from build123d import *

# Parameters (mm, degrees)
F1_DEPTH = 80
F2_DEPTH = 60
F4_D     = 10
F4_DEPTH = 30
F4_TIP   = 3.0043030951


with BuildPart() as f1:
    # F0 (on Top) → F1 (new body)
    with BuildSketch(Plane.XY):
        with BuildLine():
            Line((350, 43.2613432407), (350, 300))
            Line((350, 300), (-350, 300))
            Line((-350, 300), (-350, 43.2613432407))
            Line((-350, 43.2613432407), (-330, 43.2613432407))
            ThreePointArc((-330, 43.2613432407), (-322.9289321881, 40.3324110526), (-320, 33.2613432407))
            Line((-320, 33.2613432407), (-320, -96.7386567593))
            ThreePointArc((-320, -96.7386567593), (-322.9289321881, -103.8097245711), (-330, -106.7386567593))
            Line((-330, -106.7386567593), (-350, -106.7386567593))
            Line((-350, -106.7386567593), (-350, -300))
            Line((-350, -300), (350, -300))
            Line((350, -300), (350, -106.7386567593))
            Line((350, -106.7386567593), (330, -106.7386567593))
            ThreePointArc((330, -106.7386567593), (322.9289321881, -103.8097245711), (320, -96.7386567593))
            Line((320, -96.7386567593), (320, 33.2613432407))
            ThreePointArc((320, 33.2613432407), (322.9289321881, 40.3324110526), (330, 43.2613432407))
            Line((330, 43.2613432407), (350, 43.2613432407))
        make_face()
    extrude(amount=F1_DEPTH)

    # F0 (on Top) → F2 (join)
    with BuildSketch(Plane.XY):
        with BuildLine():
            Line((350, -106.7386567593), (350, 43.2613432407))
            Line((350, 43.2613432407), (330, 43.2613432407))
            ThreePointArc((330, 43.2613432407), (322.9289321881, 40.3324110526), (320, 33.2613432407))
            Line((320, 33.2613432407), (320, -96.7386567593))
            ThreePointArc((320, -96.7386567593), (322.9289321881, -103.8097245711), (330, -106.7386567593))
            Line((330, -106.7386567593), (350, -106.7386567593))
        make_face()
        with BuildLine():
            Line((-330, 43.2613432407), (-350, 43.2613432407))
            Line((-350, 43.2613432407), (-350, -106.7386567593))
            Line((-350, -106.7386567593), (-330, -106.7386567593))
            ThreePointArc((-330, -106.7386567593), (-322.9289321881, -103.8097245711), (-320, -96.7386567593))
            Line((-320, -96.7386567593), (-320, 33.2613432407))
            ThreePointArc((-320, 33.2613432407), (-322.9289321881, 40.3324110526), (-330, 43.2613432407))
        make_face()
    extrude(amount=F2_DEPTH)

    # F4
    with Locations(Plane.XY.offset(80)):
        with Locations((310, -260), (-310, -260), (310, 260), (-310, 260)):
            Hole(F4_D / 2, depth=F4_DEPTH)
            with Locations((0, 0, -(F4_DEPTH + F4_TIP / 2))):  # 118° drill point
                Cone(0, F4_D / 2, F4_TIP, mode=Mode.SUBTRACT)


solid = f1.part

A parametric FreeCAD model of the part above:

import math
import FreeCAD as App
import Part
import Sketcher
Q = App.Units.Quantity

doc = App.newDocument("Part")
body = doc.addObject("PartDesign::Body", "Body")

# Sketch on XY plane
sketch1 = doc.addObject("Sketcher::SketchObject", "Sketch")
body.addObject(sketch1)
sketch1.AttachmentSupport = (doc.XY_Plane, [""])
sketch1.MapMode = "FlatFace"
sketch1.addGeometry(Part.LineSegment(App.Vector(350, 43.261343, 0), App.Vector(350, 300, 0)), False)
sketch1.addGeometry(Part.LineSegment(App.Vector(350, 300, 0), App.Vector(-350, 300, 0)), False)
sketch1.addGeometry(Part.LineSegment(App.Vector(-350, 300, 0), App.Vector(-350, 43.261343, 0)), False)
sketch1.addGeometry(Part.LineSegment(App.Vector(-350, 43.261343, 0), App.Vector(-330, 43.261343, 0)), False)
sketch1.addGeometry(Part.ArcOfCircle(Part.Circle(App.Vector(-330, 33.261343, 0), App.Vector(0, 0, 1), 10), math.radians(0), math.radians(90)), False)
sketch1.addGeometry(Part.LineSegment(App.Vector(-320, 33.261343, 0), App.Vector(-320, -96.738657, 0)), False)
sketch1.addGeometry(Part.ArcOfCircle(Part.Circle(App.Vector(-330, -96.738657, 0), App.Vector(0, 0, 1), 10), math.radians(-90), math.radians(0)), False)
sketch1.addGeometry(Part.LineSegment(App.Vector(-330, -106.738657, 0), App.Vector(-350, -106.738657, 0)), False)
sketch1.addGeometry(Part.LineSegment(App.Vector(-350, -106.738657, 0), App.Vector(-350, -300, 0)), False)
sketch1.addGeometry(Part.LineSegment(App.Vector(-350, -300, 0), App.Vector(350, -300, 0)), False)
sketch1.addGeometry(Part.LineSegment(App.Vector(350, -300, 0), App.Vector(350, -106.738657, 0)), False)
sketch1.addGeometry(Part.LineSegment(App.Vector(350, -106.738657, 0), App.Vector(330, -106.738657, 0)), False)
sketch1.addGeometry(Part.ArcOfCircle(Part.Circle(App.Vector(330, -96.738657, 0), App.Vector(0, 0, 1), 10), math.radians(180), math.radians(270)), False)
sketch1.addGeometry(Part.LineSegment(App.Vector(320, -96.738657, 0), App.Vector(320, 33.261343, 0)), False)
sketch1.addGeometry(Part.ArcOfCircle(Part.Circle(App.Vector(330, 33.261343, 0), App.Vector(0, 0, 1), 10), math.radians(90), math.radians(180)), False)
sketch1.addGeometry(Part.LineSegment(App.Vector(330, 43.261343, 0), App.Vector(350, 43.261343, 0)), False)
sketch1.addConstraint(Sketcher.Constraint("Coincident", 0, 2, 1, 1))
sketch1.addConstraint(Sketcher.Constraint("Coincident", 1, 2, 2, 1))
sketch1.addConstraint(Sketcher.Constraint("Coincident", 2, 2, 3, 1))
sketch1.addConstraint(Sketcher.Constraint("Tangent", 3, 2, 4, 2))
sketch1.addConstraint(Sketcher.Constraint("Tangent", 4, 1, 5, 1))
sketch1.addConstraint(Sketcher.Constraint("Tangent", 5, 2, 6, 2))
sketch1.addConstraint(Sketcher.Constraint("Tangent", 6, 1, 7, 1))
sketch1.addConstraint(Sketcher.Constraint("Coincident", 7, 2, 8, 1))
sketch1.addConstraint(Sketcher.Constraint("Coincident", 8, 2, 9, 1))
sketch1.addConstraint(Sketcher.Constraint("Coincident", 9, 2, 10, 1))
sketch1.addConstraint(Sketcher.Constraint("Coincident", 10, 2, 11, 1))
sketch1.addConstraint(Sketcher.Constraint("Tangent", 11, 2, 12, 2))
sketch1.addConstraint(Sketcher.Constraint("Tangent", 12, 1, 13, 1))
sketch1.addConstraint(Sketcher.Constraint("Tangent", 13, 2, 14, 2))
sketch1.addConstraint(Sketcher.Constraint("Tangent", 14, 1, 15, 1))
sketch1.addConstraint(Sketcher.Constraint("Coincident", 15, 2, 0, 1))
sketch1.addConstraint(Sketcher.Constraint("Vertical", 0))
sketch1.addConstraint(Sketcher.Constraint("Horizontal", 1))
sketch1.addConstraint(Sketcher.Constraint("Vertical", 2))
sketch1.addConstraint(Sketcher.Constraint("Horizontal", 3))
sketch1.addConstraint(Sketcher.Constraint("Vertical", 5))
sketch1.addConstraint(Sketcher.Constraint("Horizontal", 7))
sketch1.addConstraint(Sketcher.Constraint("Vertical", 8))
sketch1.addConstraint(Sketcher.Constraint("Horizontal", 9))
sketch1.addConstraint(Sketcher.Constraint("Vertical", 10))
sketch1.addConstraint(Sketcher.Constraint("Horizontal", 11))
sketch1.addConstraint(Sketcher.Constraint("Vertical", 13))
sketch1.addConstraint(Sketcher.Constraint("Horizontal", 15))
sketch1.addConstraint(Sketcher.Constraint("Equal", 4, 6))
sketch1.addConstraint(Sketcher.Constraint("Equal", 6, 12))
sketch1.addConstraint(Sketcher.Constraint("Equal", 12, 14))
sketch1.addConstraint(Sketcher.Constraint("Symmetric", 0, 2, 8, 2, -1, 1))
sketch1.addConstraint(Sketcher.Constraint("Symmetric", 6, 3, 12, 3, -2))
sketch1.addConstraint(Sketcher.Constraint("Symmetric", 2, 2, 15, 2, -2))
sketch1.addConstraint(Sketcher.Constraint("Vertical", 0, 2, 9, 2))
sketch1.addConstraint(Sketcher.Constraint("Radius", 4, Q("10 mm")))
sketch1.addConstraint(Sketcher.Constraint("DistanceX", 1, 2, 1, 1, Q("700 mm")))
sketch1.addConstraint(Sketcher.Constraint("DistanceX", 3, 1, 3, 2, Q("20 mm")))
sketch1.addConstraint(Sketcher.Constraint("DistanceY", 5, 2, 5, 1, Q("130 mm")))
sketch1.addConstraint(Sketcher.Constraint("DistanceY", -1, 1, 0, 2, Q("300 mm")))
sketch1.addConstraint(Sketcher.Constraint("DistanceY", 0, 1, 0, 2, Q("256.738657 mm")))
pad1 = doc.addObject("PartDesign::Pad", "Pad")
body.addObject(pad1)
pad1.Profile = sketch1
pad1.Length = 80

# Sketch on XY plane
sketch2 = doc.addObject("Sketcher::SketchObject", "Sketch001")
body.addObject(sketch2)
sketch2.AttachmentSupport = (doc.XY_Plane, [""])
sketch2.MapMode = "FlatFace"
sketch2.addGeometry(Part.LineSegment(App.Vector(350, -106.738657, 0), App.Vector(350, 43.261343, 0)), False)
sketch2.addGeometry(Part.LineSegment(App.Vector(350, 43.261343, 0), App.Vector(330, 43.261343, 0)), False)
sketch2.addGeometry(Part.ArcOfCircle(Part.Circle(App.Vector(330, 33.261343, 0), App.Vector(0, 0, 1), 10), math.radians(90), math.radians(180)), False)
sketch2.addGeometry(Part.LineSegment(App.Vector(320, 33.261343, 0), App.Vector(320, -96.738657, 0)), False)
sketch2.addGeometry(Part.ArcOfCircle(Part.Circle(App.Vector(330, -96.738657, 0), App.Vector(0, 0, 1), 10), math.radians(180), math.radians(270)), False)
sketch2.addGeometry(Part.LineSegment(App.Vector(330, -106.738657, 0), App.Vector(350, -106.738657, 0)), False)
sketch2.addGeometry(Part.LineSegment(App.Vector(-330, 43.261343, 0), App.Vector(-350, 43.261343, 0)), False)
sketch2.addGeometry(Part.LineSegment(App.Vector(-350, 43.261343, 0), App.Vector(-350, -106.738657, 0)), False)
sketch2.addGeometry(Part.LineSegment(App.Vector(-350, -106.738657, 0), App.Vector(-330, -106.738657, 0)), False)
sketch2.addGeometry(Part.ArcOfCircle(Part.Circle(App.Vector(-330, -96.738657, 0), App.Vector(0, 0, 1), 10), math.radians(-90), math.radians(0)), False)
sketch2.addGeometry(Part.LineSegment(App.Vector(-320, -96.738657, 0), App.Vector(-320, 33.261343, 0)), False)
sketch2.addGeometry(Part.ArcOfCircle(Part.Circle(App.Vector(-330, 33.261343, 0), App.Vector(0, 0, 1), 10), math.radians(0), math.radians(90)), False)
sketch2.addConstraint(Sketcher.Constraint("Coincident", 0, 2, 1, 1))
sketch2.addConstraint(Sketcher.Constraint("Tangent", 1, 2, 2, 1))
sketch2.addConstraint(Sketcher.Constraint("Tangent", 2, 2, 3, 1))
sketch2.addConstraint(Sketcher.Constraint("Tangent", 3, 2, 4, 1))
sketch2.addConstraint(Sketcher.Constraint("Tangent", 4, 2, 5, 1))
sketch2.addConstraint(Sketcher.Constraint("Coincident", 5, 2, 0, 1))
sketch2.addConstraint(Sketcher.Constraint("Coincident", 6, 2, 7, 1))
sketch2.addConstraint(Sketcher.Constraint("Coincident", 7, 2, 8, 1))
sketch2.addConstraint(Sketcher.Constraint("Tangent", 8, 2, 9, 1))
sketch2.addConstraint(Sketcher.Constraint("Tangent", 9, 2, 10, 1))
sketch2.addConstraint(Sketcher.Constraint("Tangent", 10, 2, 11, 1))
sketch2.addConstraint(Sketcher.Constraint("Tangent", 11, 2, 6, 1))
sketch2.addConstraint(Sketcher.Constraint("Vertical", 0))
sketch2.addConstraint(Sketcher.Constraint("Horizontal", 1))
sketch2.addConstraint(Sketcher.Constraint("Vertical", 3))
sketch2.addConstraint(Sketcher.Constraint("Horizontal", 5))
sketch2.addConstraint(Sketcher.Constraint("Horizontal", 6))
sketch2.addConstraint(Sketcher.Constraint("Vertical", 7))
sketch2.addConstraint(Sketcher.Constraint("Horizontal", 8))
sketch2.addConstraint(Sketcher.Constraint("Vertical", 10))
sketch2.addConstraint(Sketcher.Constraint("Equal", 2, 4))
sketch2.addConstraint(Sketcher.Constraint("Equal", 4, 9))
sketch2.addConstraint(Sketcher.Constraint("Equal", 9, 11))
sketch2.addConstraint(Sketcher.Constraint("Symmetric", 4, 3, 9, 3, -2))
sketch2.addConstraint(Sketcher.Constraint("Symmetric", 0, 2, 6, 2, -2))
sketch2.addConstraint(Sketcher.Constraint("Radius", 2, Q("10 mm")))
sketch2.addConstraint(Sketcher.Constraint("DistanceX", 1, 2, 1, 1, Q("20 mm")))
sketch2.addConstraint(Sketcher.Constraint("DistanceY", 0, 1, 0, 2, Q("150 mm")))
sketch2.addConstraint(Sketcher.Constraint("DistanceX", -1, 1, 2, 3, Q("330 mm")))
sketch2.addConstraint(Sketcher.Constraint("DistanceY", -1, 1, 2, 3, Q("33.261343 mm")))
pad2 = doc.addObject("PartDesign::Pad", "Pad001")
body.addObject(pad2)
pad2.Profile = sketch2
pad2.Length = 60

# Sketch on XY plane
sketch3 = doc.addObject("Sketcher::SketchObject", "Sketch002")
body.addObject(sketch3)
sketch3.AttachmentSupport = (doc.XY_Plane, [""])
sketch3.MapMode = "FlatFace"
sketch3.AttachmentOffset = App.Placement(App.Vector(0, 0, 80), App.Rotation())
sketch3.addGeometry(Part.Circle(App.Vector(310, -260, 0), App.Vector(0, 0, 1), 5), False)
sketch3.addGeometry(Part.Circle(App.Vector(-310, -260, 0), App.Vector(0, 0, 1), 5), False)
sketch3.addGeometry(Part.Circle(App.Vector(310, 260, 0), App.Vector(0, 0, 1), 5), False)
sketch3.addGeometry(Part.Circle(App.Vector(-310, 260, 0), App.Vector(0, 0, 1), 5), False)
sketch3.addConstraint(Sketcher.Constraint("Equal", 0, 1))
sketch3.addConstraint(Sketcher.Constraint("Equal", 1, 2))
sketch3.addConstraint(Sketcher.Constraint("Equal", 2, 3))
sketch3.addConstraint(Sketcher.Constraint("Symmetric", 1, 3, 2, 3, -1, 1))
sketch3.addConstraint(Sketcher.Constraint("Symmetric", 0, 3, 3, 3, -1, 1))
sketch3.addConstraint(Sketcher.Constraint("Symmetric", 0, 3, 1, 3, -2))
sketch3.addConstraint(Sketcher.Constraint("Diameter", 0, Q("10 mm")))
sketch3.addConstraint(Sketcher.Constraint("DistanceX", -1, 1, 0, 3, Q("310 mm")))
sketch3.addConstraint(Sketcher.Constraint("DistanceY", 0, 3, -1, 1, Q("260 mm")))
doc.recompute()
hole = doc.addObject("PartDesign::Hole", "Hole")
body.addObject(hole)
hole.Profile = sketch3
hole.ThreadType = "None"
hole.Diameter = 10
hole.DepthType = "Dimension"
hole.Depth = 30
hole.DrillPoint = "Angled"
hole.DrillPointAngle = 118

doc.recompute()
